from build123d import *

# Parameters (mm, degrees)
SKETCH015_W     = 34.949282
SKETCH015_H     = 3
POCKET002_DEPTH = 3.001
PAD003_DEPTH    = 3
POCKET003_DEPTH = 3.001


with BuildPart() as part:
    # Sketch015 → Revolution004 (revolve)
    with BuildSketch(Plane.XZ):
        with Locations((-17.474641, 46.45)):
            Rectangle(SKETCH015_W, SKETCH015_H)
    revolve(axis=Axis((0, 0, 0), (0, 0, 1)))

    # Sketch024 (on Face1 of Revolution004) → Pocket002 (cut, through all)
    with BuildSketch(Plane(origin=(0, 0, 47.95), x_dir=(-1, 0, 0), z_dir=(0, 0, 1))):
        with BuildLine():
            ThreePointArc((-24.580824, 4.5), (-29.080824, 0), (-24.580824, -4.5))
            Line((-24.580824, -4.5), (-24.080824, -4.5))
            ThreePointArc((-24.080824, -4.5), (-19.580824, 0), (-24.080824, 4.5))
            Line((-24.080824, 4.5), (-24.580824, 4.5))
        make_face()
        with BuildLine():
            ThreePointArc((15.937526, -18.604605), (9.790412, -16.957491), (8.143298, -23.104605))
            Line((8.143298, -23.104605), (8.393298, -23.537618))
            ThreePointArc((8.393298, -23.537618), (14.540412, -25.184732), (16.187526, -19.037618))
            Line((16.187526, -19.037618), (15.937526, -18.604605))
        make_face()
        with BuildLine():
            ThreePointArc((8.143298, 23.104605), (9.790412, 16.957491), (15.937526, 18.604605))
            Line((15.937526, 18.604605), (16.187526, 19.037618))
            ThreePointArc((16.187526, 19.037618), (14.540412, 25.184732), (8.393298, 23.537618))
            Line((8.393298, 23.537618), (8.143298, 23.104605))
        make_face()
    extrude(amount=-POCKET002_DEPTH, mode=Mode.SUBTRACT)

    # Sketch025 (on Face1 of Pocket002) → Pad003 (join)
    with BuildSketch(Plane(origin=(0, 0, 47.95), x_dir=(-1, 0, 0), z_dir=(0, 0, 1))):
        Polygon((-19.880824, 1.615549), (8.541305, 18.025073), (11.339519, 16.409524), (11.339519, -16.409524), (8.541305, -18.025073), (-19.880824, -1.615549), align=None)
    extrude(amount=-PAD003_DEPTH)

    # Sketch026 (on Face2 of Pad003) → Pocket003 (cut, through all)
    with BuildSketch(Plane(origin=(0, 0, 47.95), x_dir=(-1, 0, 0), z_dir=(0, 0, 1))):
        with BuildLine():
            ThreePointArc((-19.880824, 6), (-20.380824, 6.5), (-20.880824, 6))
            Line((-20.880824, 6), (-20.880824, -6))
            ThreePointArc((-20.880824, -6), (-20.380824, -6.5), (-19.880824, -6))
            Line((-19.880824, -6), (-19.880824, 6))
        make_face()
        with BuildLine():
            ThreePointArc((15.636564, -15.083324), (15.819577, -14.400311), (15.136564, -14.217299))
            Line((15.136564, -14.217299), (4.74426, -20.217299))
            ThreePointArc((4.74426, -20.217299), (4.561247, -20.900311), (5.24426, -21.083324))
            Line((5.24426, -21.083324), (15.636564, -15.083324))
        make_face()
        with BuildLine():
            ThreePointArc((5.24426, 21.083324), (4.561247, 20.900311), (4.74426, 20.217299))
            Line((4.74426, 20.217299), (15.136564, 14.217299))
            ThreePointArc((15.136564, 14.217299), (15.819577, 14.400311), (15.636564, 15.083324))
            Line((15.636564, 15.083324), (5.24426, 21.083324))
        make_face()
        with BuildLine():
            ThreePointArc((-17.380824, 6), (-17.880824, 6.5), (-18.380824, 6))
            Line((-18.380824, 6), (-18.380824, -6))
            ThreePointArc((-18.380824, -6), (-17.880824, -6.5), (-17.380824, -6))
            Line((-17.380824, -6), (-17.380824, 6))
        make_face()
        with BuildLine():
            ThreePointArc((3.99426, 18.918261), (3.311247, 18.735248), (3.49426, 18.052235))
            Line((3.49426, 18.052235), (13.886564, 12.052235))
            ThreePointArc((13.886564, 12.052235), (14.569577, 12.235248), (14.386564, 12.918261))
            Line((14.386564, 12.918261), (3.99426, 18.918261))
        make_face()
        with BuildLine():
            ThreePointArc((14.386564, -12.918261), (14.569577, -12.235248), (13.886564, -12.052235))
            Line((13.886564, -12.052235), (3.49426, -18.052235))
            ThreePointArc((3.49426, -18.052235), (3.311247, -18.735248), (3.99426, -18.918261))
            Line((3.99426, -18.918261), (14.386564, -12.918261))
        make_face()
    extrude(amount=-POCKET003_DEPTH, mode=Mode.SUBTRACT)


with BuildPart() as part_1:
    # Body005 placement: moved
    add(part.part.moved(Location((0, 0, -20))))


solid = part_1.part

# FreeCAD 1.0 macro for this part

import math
import FreeCAD as App
import Part
import Sketcher
Q = App.Units.Quantity


def add_polygon(sketch, points):
    """Adds a closed chain of lines whose ends are joined by coincident constraints."""
    first, n = sketch.GeometryCount, len(points)
    for a, b in zip(points, points[1:] + points[:1]):
        sketch.addGeometry(Part.LineSegment(App.Vector(*a, 0), App.Vector(*b, 0)), False)
    for i in range(n):
        sketch.addConstraint(Sketcher.Constraint("Coincident", first + i, 2, first + (i + 1) % n, 1))

doc = App.newDocument("Part")
params = doc.addObject("Spreadsheet::Sheet", "Params")
for row, (alias, value) in enumerate([
    ("sketch1_height", "3 mm"),
    ("revolution_angle", "360 deg"),
    ("sketch2_radius", "4.5 mm"),
    ("sketch2_width", "0.5 mm"),
    ("sketch2_length", "0.5 mm"),
    ("pad1_length", "3 mm"),
    ("sketch4_radius", "0.5 mm"),
    ("sketch4_height", "12 mm"),
    ("sketch4_length", "11.999999 mm"),
], start=1):
    params.set(f"A{row}", alias)
    params.set(f"B{row}", "=" + value)
    params.setAlias(f"B{row}", alias)

body = doc.addObject("PartDesign::Body", "Body")

sketch1 = doc.addObject("Sketcher::SketchObject", "Sketch")
body.addObject(sketch1)
sketch1.AttachmentSupport = (doc.XZ_Plane, [""])
sketch1.MapMode = "FlatFace"
add_polygon(sketch1, [(-34.9, 48), (-34.9, 45), (0, 45), (0, 48)])
sketch1.addConstraint([
    Sketcher.Constraint("Vertical", 0),
    Sketcher.Constraint("Horizontal", 1),
    Sketcher.Constraint("Vertical", 2),
    Sketcher.Constraint("Horizontal", 3),
    Sketcher.Constraint("PointOnObject", 1, 2, -2),
    Sketcher.Constraint("DistanceY", 0, 2, 0, 1, 3.0),
    Sketcher.Constraint("DistanceY", -1, 1, 0, 2, 44.95),
    Sketcher.Constraint("DistanceX", 1, 1, 1, 2, 34.949282),
])
sketch1.setExpression("Constraints[9]", "Params.sketch1_height")
revolution = doc.addObject("PartDesign::Revolution", "Revolution")
body.addObject(revolution)
revolution.Profile = sketch1
revolution.ReferenceAxis = (sketch1, ["V_Axis"])
revolution.setExpression("Angle", "Params.revolution_angle")

sketch2 = doc.addObject("Sketcher::SketchObject", "Sketch001")
body.addObject(sketch2)
sketch2.AttachmentSupport = (doc.XY_Plane, [""])
sketch2.MapMode = "FlatFace"
sketch2.AttachmentOffset = App.Placement(App.Vector(0, 0, 47.95), App.Rotation())
sketch2.addGeometry([
    Part.ArcOfCircle(Part.Circle(App.Vector(24.6, 0, 0), App.Vector(0, 0, 1), 4.5), math.radians(-90), math.radians(90)),
    Part.LineSegment(App.Vector(24.6, 4.5, 0), App.Vector(24.1, 4.5, 0)),
    Part.ArcOfCircle(Part.Circle(App.Vector(24.1, 0, 0), App.Vector(0, 0, 1), 4.5), math.radians(90), math.radians(270)),
    Part.LineSegment(App.Vector(24.1, -4.5, 0), App.Vector(24.6, -4.5, 0)),
    Part.ArcOfCircle(Part.Circle(App.Vector(-12, 20.9, 0), App.Vector(0, 0, 1), 4.5), math.radians(-150), math.radians(30)),
    Part.LineSegment(App.Vector(-8.1, 23.1, 0), App.Vector(-8.4, 23.5, 0)),
    Part.ArcOfCircle(Part.Circle(App.Vector(-12.3, 21.3, 0), App.Vector(0, 0, 1), 4.5), math.radians(30), math.radians(210)),
    Part.LineSegment(App.Vector(-16.2, 19, 0), App.Vector(-15.9, 18.6, 0)),
    Part.ArcOfCircle(Part.Circle(App.Vector(-12, -20.9, 0), App.Vector(0, 0, 1), 4.5), math.radians(-30), math.radians(150)),
    Part.LineSegment(App.Vector(-15.9, -18.6, 0), App.Vector(-16.2, -19, 0)),
    Part.ArcOfCircle(Part.Circle(App.Vector(-12.3, -21.3, 0), App.Vector(0, 0, 1), 4.5), math.radians(150), math.radians(330)),
    Part.LineSegment(App.Vector(-8.4, -23.5, 0), App.Vector(-8.1, -23.1, 0)),
], False)
sketch2.addConstraint([
    Sketcher.Constraint("Tangent", 0, 2, 1, 1),
    Sketcher.Constraint("Tangent", 1, 2, 2, 1),
    Sketcher.Constraint("Tangent", 2, 2, 3, 1),
    Sketcher.Constraint("Tangent", 3, 2, 0, 1),
    Sketcher.Constraint("Tangent", 4, 2, 5, 1),
    Sketcher.Constraint("Tangent", 5, 2, 6, 1),
    Sketcher.Constraint("Tangent", 6, 2, 7, 1),
    Sketcher.Constraint("Tangent", 7, 2, 4, 1),
    Sketcher.Constraint("Tangent", 8, 2, 9, 1),
    Sketcher.Constraint("Tangent", 9, 2, 10, 1),
    Sketcher.Constraint("Tangent", 10, 2, 11, 1),
    Sketcher.Constraint("Tangent", 11, 2, 8, 1),
    Sketcher.Constraint("Horizontal", 1),
    Sketcher.Constraint("Horizontal", 3),
    Sketcher.Constraint("Equal", 2, 4),
    Sketcher.Constraint("Equal", 4, 6),
    Sketcher.Constraint("Equal", 6, 8),
    Sketcher.Constraint("Equal", 8, 10),
    Sketcher.Constraint("Symmetric", 4, 3, 8, 3, -1),
    Sketcher.Constraint("Symmetric", 6, 3, 10, 3, -1),
    Sketcher.Constraint("PointOnObject", 0, 3, -1),
    Sketcher.Constraint("Radius", 0, 4.5),
    Sketcher.Constraint("Angle", 5, Q("119.999983 deg")),
    Sketcher.Constraint("DistanceX", 1, 2, 1, 1, 0.5),
    Sketcher.Constraint("Distance", 5, 0.5),
    Sketcher.Constraint("DistanceX", 4, 2, -1, 1, 8.143298),
    Sketcher.Constraint("DistanceY", -1, 1, 6, 2, 19.037618),
    Sketcher.Constraint("DistanceX", -1, 1, 0, 3, 24.580824),
])
sketch2.setExpression("Constraints[21]", "Params.sketch2_radius")
sketch2.setExpression("Constraints[23]", "Params.sketch2_width")
sketch2.setExpression("Constraints[24]", "Params.sketch2_length")
pocket1 = doc.addObject("PartDesign::Pocket", "Pocket")
body.addObject(pocket1)
pocket1.Profile = sketch2
pocket1.Type = "ThroughAll"

sketch3 = doc.addObject("Sketcher::SketchObject", "Sketch002")
body.addObject(sketch3)
sketch3.AttachmentSupport = (doc.XY_Plane, [""])
sketch3.MapMode = "FlatFace"
sketch3.AttachmentOffset = App.Placement(App.Vector(0, 0, 47.95), App.Rotation())
add_polygon(sketch3, [(-8.5, -18), (19.9, -1.6), (19.9, 1.6), (-8.5, 18), (-11.3, 16.4), (-11.3, -16.4)])
sketch3.addConstraint([
    Sketcher.Constraint("Vertical", 1),
    Sketcher.Constraint("Vertical", 4),
    Sketcher.Constraint("Symmetric", 2, 2, 5, 2, -1),
    Sketcher.Constraint("Parallel", 0, 3),
    Sketcher.Constraint("Parallel", 2, 5),
    Sketcher.Constraint("Equal", 0, 2),
    Sketcher.Constraint("Angle", 0, Q("30 deg")),
    Sketcher.Constraint("Distance", 3, 3.231099),
    Sketcher.Constraint("DistanceY", 4, 2, 4, 1, 32.819048),
    Sketcher.Constraint("DistanceY", 1, 1, 1, 2, 3.231098),
    Sketcher.Constraint("DistanceX", 3, 2, -1, 1, 11.339519),
])
pad1 = doc.addObject("PartDesign::Pad", "Pad")
body.addObject(pad1)
pad1.Profile = sketch3
pad1.setExpression("Length", "Params.pad1_length")
pad1.Reversed = True

sketch4 = doc.addObject("Sketcher::SketchObject", "Sketch003")
body.addObject(sketch4)
sketch4.AttachmentSupport = (doc.XY_Plane, [""])
sketch4.MapMode = "FlatFace"
sketch4.AttachmentOffset = App.Placement(App.Vector(0, 0, 47.95), App.Rotation())
sketch4.addGeometry([
    Part.ArcOfCircle(Part.Circle(App.Vector(20.38, -6, 0), App.Vector(0, 0, 1), 0.5), math.radians(180), math.radians(360)),
    Part.LineSegment(App.Vector(20.88, -6, 0), App.Vector(20.88, 6, 0)),
    Part.ArcOfCircle(Part.Circle(App.Vector(20.38, 6, 0), App.Vector(0, 0, 1), 0.5), math.radians(0), math.radians(180)),
    Part.LineSegment(App.Vector(19.88, 6, 0), App.Vector(19.88, -6, 0)),
    Part.ArcOfCircle(Part.Circle(App.Vector(-15.39, 14.65, 0), App.Vector(0, 0, 1), 0.5), math.radians(120), math.radians(300)),
    Part.LineSegment(App.Vector(-15.14, 14.22, 0), App.Vector(-4.74, 20.22, 0)),
    Part.ArcOfCircle(Part.Circle(App.Vector(-4.99, 20.65, 0), App.Vector(0, 0, 1), 0.5), math.radians(-60), math.radians(120)),
    Part.LineSegment(App.Vector(-5.24, 21.08, 0), App.Vector(-15.64, 15.08, 0)),
    Part.ArcOfCircle(Part.Circle(App.Vector(-4.99, -20.65, 0), App.Vector(0, 0, 1), 0.5), math.radians(-120), math.radians(60)),
    Part.LineSegment(App.Vector(-4.74, -20.22, 0), App.Vector(-15.14, -14.22, 0)),
    Part.ArcOfCircle(Part.Circle(App.Vector(-15.39, -14.65, 0), App.Vector(0, 0, 1), 0.5), math.radians(60), math.radians(240)),
    Part.LineSegment(App.Vector(-15.64, -15.08, 0), App.Vector(-5.24, -21.08, 0)),
    Part.ArcOfCircle(Part.Circle(App.Vector(17.88, -6, 0), App.Vector(0, 0, 1), 0.5), math.radians(180), math.radians(360)),
    Part.LineSegment(App.Vector(18.38, -6, 0), App.Vector(18.38, 6, 0)),
    Part.ArcOfCircle(Part.Circle(App.Vector(17.88, 6, 0), App.Vector(0, 0, 1), 0.5), math.radians(0), math.radians(180)),
    Part.LineSegment(App.Vector(17.38, 6, 0), App.Vector(17.38, -6, 0)),
    Part.ArcOfCircle(Part.Circle(App.Vector(-3.74, -18.49, 0), App.Vector(0, 0, 1), 0.5), math.radians(-120), math.radians(60)),
    Part.LineSegment(App.Vector(-3.49, -18.05, 0), App.Vector(-13.89, -12.05, 0)),
    Part.ArcOfCircle(Part.Circle(App.Vector(-14.14, -12.49, 0), App.Vector(0, 0, 1), 0.5), math.radians(60), math.radians(240)),
    Part.LineSegment(App.Vector(-14.39, -12.92, 0), App.Vector(-3.99, -18.92, 0)),
    Part.ArcOfCircle(Part.Circle(App.Vector(-14.14, 12.49, 0), App.Vector(0, 0, 1), 0.5), math.radians(120), math.radians(300)),
    Part.LineSegment(App.Vector(-13.89, 12.05, 0), App.Vector(-3.49, 18.05, 0)),
    Part.ArcOfCircle(Part.Circle(App.Vector(-3.74, 18.49, 0), App.Vector(0, 0, 1), 0.5), math.radians(-60), math.radians(120)),
    Part.LineSegment(App.Vector(-3.99, 18.92, 0), App.Vector(-14.39, 12.92, 0)),
], False)
sketch4.addConstraint([
    Sketcher.Constraint("Tangent", 0, 2, 1, 1),
    Sketcher.Constraint("Tangent", 1, 2, 2, 1),
    Sketcher.Constraint("Tangent", 2, 2, 3, 1),
    Sketcher.Constraint("Tangent", 3, 2, 0, 1),
    Sketcher.Constraint("Tangent", 4, 2, 5, 1),
    Sketcher.Constraint("Tangent", 5, 2, 6, 1),
    Sketcher.Constraint("Tangent", 6, 2, 7, 1),
    Sketcher.Constraint("Tangent", 7, 2, 4, 1),
    Sketcher.Constraint("Tangent", 8, 2, 9, 1),
    Sketcher.Constraint("Tangent", 9, 2, 10, 1),
    Sketcher.Constraint("Tangent", 10, 2, 11, 1),
    Sketcher.Constraint("Tangent", 11, 2, 8, 1),
    Sketcher.Constraint("Tangent", 12, 2, 13, 1),
    Sketcher.Constraint("Tangent", 13, 2, 14, 1),
    Sketcher.Constraint("Tangent", 14, 2, 15, 1),
    Sketcher.Constraint("Tangent", 15, 2, 12, 1),
    Sketcher.Constraint("Tangent", 16, 2, 17, 1),
    Sketcher.Constraint("Tangent", 17, 2, 18, 1),
    Sketcher.Constraint("Tangent", 18, 2, 19, 1),
    Sketcher.Constraint("Tangent", 19, 2, 16, 1),
    Sketcher.Constraint("Tangent", 20, 2, 21, 1),
    Sketcher.Constraint("Tangent", 21, 2, 22, 1),
    Sketcher.Constraint("Tangent", 22, 2, 23, 1),
    Sketcher.Constraint("Tangent", 23, 2, 20, 1),
    Sketcher.Constraint("Vertical", 1),
    Sketcher.Constraint("Vertical", 3),
    Sketcher.Constraint("Vertical", 13),
    Sketcher.Constraint("Vertical", 15),
    Sketcher.Constraint("Equal", 2, 4),
    Sketcher.Constraint("Equal", 4, 6),
    Sketcher.Constraint("Equal", 6, 8),
    Sketcher.Constraint("Equal", 8, 10),
    Sketcher.Constraint("Equal", 10, 12),
    Sketcher.Constraint("Equal", 14, 16),
    Sketcher.Constraint("Equal", 16, 18),
    Sketcher.Constraint("Equal", 18, 20),
    Sketcher.Constraint("Equal", 20, 22),
    Sketcher.Constraint("Symmetric", 6, 3, 8, 3, -1),
    Sketcher.Constraint("Symmetric", 4, 3, 10, 3, -1),
    Sketcher.Constraint("Symmetric", 18, 3, 20, 3, -1),
    Sketcher.Constraint("Symmetric", 16, 3, 22, 3, -1),
    Sketcher.Constraint("Parallel", 11, 17),
    Sketcher.Constraint("Horizontal", 0, 3, 12, 3),
    Sketcher.Constraint("Horizontal", 2, 3, 14, 3),
    Sketcher.Constraint("Equal", 11, 17),
    Sketcher.Constraint("Radius", 0, 0.5),
    Sketcher.Constraint("DistanceY", 1, 1, 1, 2, 12.0),
    Sketcher.Constraint("Angle", 5, Q("30.000002 deg")),
    Sketcher.Constraint("Distance", 5, 11.999999),
    Sketcher.Constraint("DistanceY", 0, 3, -1, 1, 6.0),
    Sketcher.Constraint("DistanceX", 12, 3, 0, 2, 3.0),
    Sketcher.Constraint("DistanceX", 4, 2, 20, 3, 1.0),
    Sketcher.Constraint("DistanceY", -1, 1, 4, 2, 14.217299),
    Sketcher.Constraint("DistanceX", 6, 3, -1, 1, 4.99426),
    Sketcher.Constraint("DistanceY", 18, 2, -1, 1, 12.918261),
    Sketcher.Constraint("DistanceX", 4, 3, 2, 3, 35.767389),
])
sketch4.setExpression("Constraints[45]", "Params.sketch4_radius")
sketch4.setExpression("Constraints[46]", "Params.sketch4_height")
sketch4.setExpression("Constraints[48]", "Params.sketch4_length")
pocket2 = doc.addObject("PartDesign::Pocket", "Pocket001")
body.addObject(pocket2)
pocket2.Profile = sketch4
pocket2.Type = "ThroughAll"
body2 = doc.addObject("PartDesign::Body", "Body001")
doc.recompute()

body.Placement = App.Placement(App.Vector(0, 0, -20), App.Rotation(App.Vector(0, 0, 1), 0))
boolean = doc.addObject("PartDesign::Boolean", "Boolean")
body2.addObject(boolean)
boolean.Type = "Fuse"
boolean.addObjects([body])

doc.recompute()
